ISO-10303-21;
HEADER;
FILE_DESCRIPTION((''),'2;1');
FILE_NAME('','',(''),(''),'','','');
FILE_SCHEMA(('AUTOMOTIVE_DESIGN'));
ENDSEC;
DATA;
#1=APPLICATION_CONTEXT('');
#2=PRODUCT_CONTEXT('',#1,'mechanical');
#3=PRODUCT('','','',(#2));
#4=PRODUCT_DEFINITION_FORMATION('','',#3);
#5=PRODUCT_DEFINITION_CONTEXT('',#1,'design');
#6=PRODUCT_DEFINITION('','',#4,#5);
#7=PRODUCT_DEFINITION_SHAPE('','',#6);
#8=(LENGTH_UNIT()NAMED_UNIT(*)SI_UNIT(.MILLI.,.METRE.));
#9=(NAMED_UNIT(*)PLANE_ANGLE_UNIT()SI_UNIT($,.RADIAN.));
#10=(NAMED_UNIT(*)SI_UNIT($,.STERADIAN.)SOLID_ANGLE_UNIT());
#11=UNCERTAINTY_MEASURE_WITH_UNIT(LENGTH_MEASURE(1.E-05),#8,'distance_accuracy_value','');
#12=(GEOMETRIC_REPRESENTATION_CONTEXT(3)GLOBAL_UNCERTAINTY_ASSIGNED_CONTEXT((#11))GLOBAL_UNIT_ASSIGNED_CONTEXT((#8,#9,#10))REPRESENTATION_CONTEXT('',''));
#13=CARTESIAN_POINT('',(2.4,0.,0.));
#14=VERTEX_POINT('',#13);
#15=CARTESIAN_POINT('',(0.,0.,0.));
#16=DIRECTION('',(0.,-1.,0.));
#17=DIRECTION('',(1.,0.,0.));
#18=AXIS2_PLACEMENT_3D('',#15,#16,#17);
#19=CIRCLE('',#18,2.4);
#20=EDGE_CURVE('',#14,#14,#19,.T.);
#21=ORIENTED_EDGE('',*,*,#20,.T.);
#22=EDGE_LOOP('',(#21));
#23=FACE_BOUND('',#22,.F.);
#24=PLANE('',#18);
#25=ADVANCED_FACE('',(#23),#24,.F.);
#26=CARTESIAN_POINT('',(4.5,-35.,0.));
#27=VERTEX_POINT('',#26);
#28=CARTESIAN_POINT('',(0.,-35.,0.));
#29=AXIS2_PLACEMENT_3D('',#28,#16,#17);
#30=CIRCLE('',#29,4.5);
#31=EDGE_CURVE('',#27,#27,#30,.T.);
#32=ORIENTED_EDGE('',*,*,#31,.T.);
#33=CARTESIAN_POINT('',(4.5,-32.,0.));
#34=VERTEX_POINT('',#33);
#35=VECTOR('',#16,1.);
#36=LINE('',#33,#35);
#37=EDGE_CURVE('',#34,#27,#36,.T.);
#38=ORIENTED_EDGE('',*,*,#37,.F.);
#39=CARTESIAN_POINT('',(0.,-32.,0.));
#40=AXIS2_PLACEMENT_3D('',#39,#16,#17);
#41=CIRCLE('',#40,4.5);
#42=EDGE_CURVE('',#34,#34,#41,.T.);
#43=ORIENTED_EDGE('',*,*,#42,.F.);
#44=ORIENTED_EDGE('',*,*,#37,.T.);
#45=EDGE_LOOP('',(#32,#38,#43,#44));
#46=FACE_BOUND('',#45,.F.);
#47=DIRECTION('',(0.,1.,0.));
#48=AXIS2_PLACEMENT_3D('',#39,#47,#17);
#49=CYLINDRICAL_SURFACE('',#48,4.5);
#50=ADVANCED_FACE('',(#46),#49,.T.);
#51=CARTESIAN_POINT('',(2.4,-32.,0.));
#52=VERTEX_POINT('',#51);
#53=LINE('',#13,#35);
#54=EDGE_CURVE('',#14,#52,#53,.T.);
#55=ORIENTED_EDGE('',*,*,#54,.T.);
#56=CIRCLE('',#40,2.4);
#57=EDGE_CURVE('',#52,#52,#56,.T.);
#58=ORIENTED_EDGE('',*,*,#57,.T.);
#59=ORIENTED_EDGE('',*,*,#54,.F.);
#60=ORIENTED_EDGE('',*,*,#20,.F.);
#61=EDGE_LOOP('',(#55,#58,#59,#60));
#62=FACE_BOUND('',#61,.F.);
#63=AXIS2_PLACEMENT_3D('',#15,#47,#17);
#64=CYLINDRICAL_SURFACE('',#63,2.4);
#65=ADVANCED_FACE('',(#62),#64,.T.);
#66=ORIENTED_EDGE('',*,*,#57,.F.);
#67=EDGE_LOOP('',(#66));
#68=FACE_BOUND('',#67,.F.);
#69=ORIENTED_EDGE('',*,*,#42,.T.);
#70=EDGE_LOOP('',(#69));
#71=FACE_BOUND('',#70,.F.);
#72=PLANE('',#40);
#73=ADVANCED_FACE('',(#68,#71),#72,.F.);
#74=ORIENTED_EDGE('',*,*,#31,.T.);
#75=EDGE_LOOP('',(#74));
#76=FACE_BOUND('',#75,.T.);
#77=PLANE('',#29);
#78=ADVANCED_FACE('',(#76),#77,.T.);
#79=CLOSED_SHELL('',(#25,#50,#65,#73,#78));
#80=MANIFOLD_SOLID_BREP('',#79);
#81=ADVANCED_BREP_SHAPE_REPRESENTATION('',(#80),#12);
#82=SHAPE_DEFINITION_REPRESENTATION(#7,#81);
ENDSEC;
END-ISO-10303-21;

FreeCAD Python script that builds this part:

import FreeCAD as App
import Part
import Sketcher

V = App.Vector
Q = App.Units.Quantity

doc = App.newDocument("Part")
body = doc.addObject("PartDesign::Body", "Body")

# Sketch on XZ plane
sketch1 = body.newObject("Sketcher::SketchObject", "Sketch")
sketch1.AttachmentSupport = (doc.getObject("XZ_Plane"), [""])
sketch1.MapMode = "FlatFace"
sketch1.addGeometry(Part.Circle(V(0, 0, 0), V(0, 0, 1), 2.4), False)
sketch1.addConstraint(Sketcher.Constraint("Coincident", 0, 3, -1, 1))
sketch1.addConstraint(Sketcher.Constraint("Diameter", 0, Q("4.8 mm")))
pad1 = body.newObject("PartDesign::Pad", "Pad")
pad1.Profile = sketch1
pad1.Length = 32

# Sketch on XZ plane
sketch2 = body.newObject("Sketcher::SketchObject", "Sketch001")
sketch2.AttachmentSupport = (doc.getObject("XZ_Plane"), [""])
sketch2.MapMode = "FlatFace"
sketch2.AttachmentOffset = App.Placement(V(0, 0, 32), App.Rotation())
sketch2.addGeometry(Part.Circle(V(0, 0, 0), V(0, 0, 1), 4.5), False)
sketch2.addConstraint(Sketcher.Constraint("Coincident", 0, 3, -1, 1))
sketch2.addConstraint(Sketcher.Constraint("Diameter", 0, Q("9 mm")))
pad2 = body.newObject("PartDesign::Pad", "Pad001")
pad2.Profile = sketch2
pad2.Length = 3

doc.recompute()
